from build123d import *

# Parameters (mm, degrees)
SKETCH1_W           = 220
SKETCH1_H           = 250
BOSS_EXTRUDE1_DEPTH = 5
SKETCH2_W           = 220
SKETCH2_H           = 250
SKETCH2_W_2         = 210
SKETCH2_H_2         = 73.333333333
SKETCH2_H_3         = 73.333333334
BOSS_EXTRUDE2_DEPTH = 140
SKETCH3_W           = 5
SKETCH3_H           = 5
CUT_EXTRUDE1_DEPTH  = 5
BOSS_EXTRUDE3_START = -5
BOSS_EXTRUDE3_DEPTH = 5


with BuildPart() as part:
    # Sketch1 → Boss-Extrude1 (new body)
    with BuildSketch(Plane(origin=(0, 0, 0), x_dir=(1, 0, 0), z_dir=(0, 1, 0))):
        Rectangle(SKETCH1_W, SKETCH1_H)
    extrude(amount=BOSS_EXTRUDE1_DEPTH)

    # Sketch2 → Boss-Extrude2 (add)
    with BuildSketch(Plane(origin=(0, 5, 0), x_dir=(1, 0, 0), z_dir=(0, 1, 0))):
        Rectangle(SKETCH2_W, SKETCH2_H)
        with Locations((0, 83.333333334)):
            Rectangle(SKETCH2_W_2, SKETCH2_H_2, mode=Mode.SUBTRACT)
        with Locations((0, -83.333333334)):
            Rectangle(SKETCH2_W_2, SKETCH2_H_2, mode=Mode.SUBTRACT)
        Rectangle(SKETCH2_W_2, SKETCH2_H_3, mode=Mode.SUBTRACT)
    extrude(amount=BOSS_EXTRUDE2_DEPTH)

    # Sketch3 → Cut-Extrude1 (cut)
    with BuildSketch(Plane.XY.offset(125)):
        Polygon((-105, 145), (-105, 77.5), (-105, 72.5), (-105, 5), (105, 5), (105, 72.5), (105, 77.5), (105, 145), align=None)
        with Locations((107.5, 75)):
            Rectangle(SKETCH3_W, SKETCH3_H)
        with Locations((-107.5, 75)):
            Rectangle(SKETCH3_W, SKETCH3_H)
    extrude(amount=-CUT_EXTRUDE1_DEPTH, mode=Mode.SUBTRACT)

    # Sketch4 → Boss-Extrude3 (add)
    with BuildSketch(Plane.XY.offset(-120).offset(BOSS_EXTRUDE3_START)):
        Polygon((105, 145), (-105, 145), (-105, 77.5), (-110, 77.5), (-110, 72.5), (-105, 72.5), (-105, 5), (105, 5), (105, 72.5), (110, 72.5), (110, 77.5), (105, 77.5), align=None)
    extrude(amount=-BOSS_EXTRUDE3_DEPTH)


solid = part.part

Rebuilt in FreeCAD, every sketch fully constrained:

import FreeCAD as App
import Part
import Sketcher

V = App.Vector

doc = App.newDocument("Part")
body = doc.addObject("PartDesign::Body", "Body")

sketch1 = body.newObject("Sketcher::SketchObject", "Sketch")
sketch1.AttachmentSupport = (doc.getObject("XZ_Plane"), [""])
sketch1.MapMode = "FlatFace"
sketch1.addGeometry([
    Part.LineSegment(V(-110, -125, 0), V(-110, 125, 0)),
    Part.LineSegment(V(-110, 125, 0), V(110, 125, 0)),
    Part.LineSegment(V(110, 125, 0), V(110, -125, 0)),
    Part.LineSegment(V(110, -125, 0), V(-110, -125, 0)),
], False)
sketch1.addConstraint([
    Sketcher.Constraint("Coincident", 0, 2, 1, 1),
    Sketcher.Constraint("Coincident", 1, 2, 2, 1),
    Sketcher.Constraint("Coincident", 2, 2, 3, 1),
    Sketcher.Constraint("Coincident", 3, 2, 0, 1),
    Sketcher.Constraint("Vertical", 0),
    Sketcher.Constraint("Horizontal", 1),
    Sketcher.Constraint("Vertical", 2),
    Sketcher.Constraint("Horizontal", 3),
    Sketcher.Constraint("Symmetric", 0, 2, 2, 2, -1, 1),
    Sketcher.Constraint("DistanceX", 1, 1, 1, 2, 220.0),
    Sketcher.Constraint("DistanceY", 0, 1, 0, 2, 250.0),
])
pad1 = body.newObject("PartDesign::Pad", "Pad")
pad1.Profile = sketch1
pad1.Length = 5
pad1.Reversed = True

sketch2 = body.newObject("Sketcher::SketchObject", "Sketch001")
sketch2.AttachmentSupport = (doc.getObject("XZ_Plane"), [""])
sketch2.MapMode = "FlatFace"
sketch2.AttachmentOffset = App.Placement(V(0, 0, -5), App.Rotation())
sketch2.addGeometry([
    Part.LineSegment(V(-110, -125, 0), V(-110, 125, 0)),
    Part.LineSegment(V(-110, 125, 0), V(110, 125, 0)),
    Part.LineSegment(V(110, 125, 0), V(110, -125, 0)),
    Part.LineSegment(V(110, -125, 0), V(-110, -125, 0)),
    Part.LineSegment(V(105, 120, 0), V(-105, 120, 0)),
    Part.LineSegment(V(-105, 120, 0), V(-105, 46.666667, 0)),
    Part.LineSegment(V(-105, 46.666667, 0), V(105, 46.666667, 0)),
    Part.LineSegment(V(105, 46.666667, 0), V(105, 120, 0)),
    Part.LineSegment(V(105, 36.666667, 0), V(-105, 36.666667, 0)),
    Part.LineSegment(V(-105, 36.666667, 0), V(-105, -36.666667, 0)),
    Part.LineSegment(V(-105, -36.666667, 0), V(105, -36.666667, 0)),
    Part.LineSegment(V(105, -36.666667, 0), V(105, 36.666667, 0)),
    Part.LineSegment(V(105, -46.666667, 0), V(-105, -46.666667, 0)),
    Part.LineSegment(V(-105, -46.666667, 0), V(-105, -120, 0)),
    Part.LineSegment(V(-105, -120, 0), V(105, -120, 0)),
    Part.LineSegment(V(105, -120, 0), V(105, -46.666667, 0)),
], False)
sketch2.addConstraint([
    Sketcher.Constraint("Coincident", 0, 2, 1, 1),
    Sketcher.Constraint("Coincident", 1, 2, 2, 1),
    Sketcher.Constraint("Coincident", 2, 2, 3, 1),
    Sketcher.Constraint("Coincident", 3, 2, 0, 1),
    Sketcher.Constraint("Coincident", 4, 2, 5, 1),
    Sketcher.Constraint("Coincident", 5, 2, 6, 1),
    Sketcher.Constraint("Coincident", 6, 2, 7, 1),
    Sketcher.Constraint("Coincident", 7, 2, 4, 1),
    Sketcher.Constraint("Coincident", 8, 2, 9, 1),
    Sketcher.Constraint("Coincident", 9, 2, 10, 1),
    Sketcher.Constraint("Coincident", 10, 2, 11, 1),
    Sketcher.Constraint("Coincident", 11, 2, 8, 1),
    Sketcher.Constraint("Coincident", 12, 2, 13, 1),
    Sketcher.Constraint("Coincident", 13, 2, 14, 1),
    Sketcher.Constraint("Coincident", 14, 2, 15, 1),
    Sketcher.Constraint("Coincident", 15, 2, 12, 1),
    Sketcher.Constraint("Vertical", 0),
    Sketcher.Constraint("Horizontal", 1),
    Sketcher.Constraint("Vertical", 2),
    Sketcher.Constraint("Horizontal", 3),
    Sketcher.Constraint("Horizontal", 4),
    Sketcher.Constraint("Vertical", 5),
    Sketcher.Constraint("Horizontal", 6),
    Sketcher.Constraint("Vertical", 7),
    Sketcher.Constraint("Horizontal", 8),
    Sketcher.Constraint("Vertical", 9),
    Sketcher.Constraint("Horizontal", 10),
    Sketcher.Constraint("Vertical", 11),
    Sketcher.Constraint("Horizontal", 12),
    Sketcher.Constraint("Vertical", 13),
    Sketcher.Constraint("Horizontal", 14),
    Sketcher.Constraint("Vertical", 15),
    Sketcher.Constraint("Symmetric", 0, 2, 2, 2, -1, 1),
    Sketcher.Constraint("Symmetric", 8, 2, 10, 2, -1, 1),
    Sketcher.Constraint("Symmetric", 6, 2, 12, 2, -1, 1),
    Sketcher.Constraint("Symmetric", 4, 2, 14, 2, -1, 1),
    Sketcher.Constraint("Vertical", 5, 2, 8, 2),
    Sketcher.Constraint("Vertical", 7, 2, 10, 2),
    Sketcher.Constraint("Equal", 7, 9),
    Sketcher.Constraint("DistanceX", 1, 1, 1, 2, 220.0),
    Sketcher.Constraint("DistanceX", 4, 2, 4, 1, 210.0),
    Sketcher.Constraint("DistanceY", 0, 1, 0, 2, 250.0),
    Sketcher.Constraint("DistanceY", -1, 1, 4, 2, 120.0),
    Sketcher.Constraint("DistanceY", 8, 2, 5, 2, 10.0),
])
pad2 = body.newObject("PartDesign::Pad", "Pad001")
pad2.Profile = sketch2
pad2.Length = 140
pad2.Reversed = True

sketch3 = body.newObject("Sketcher::SketchObject", "Sketch002")
sketch3.AttachmentSupport = (doc.getObject("XY_Plane"), [""])
sketch3.MapMode = "FlatFace"
sketch3.AttachmentOffset = App.Placement(V(0, 0, 125), App.Rotation())
sketch3.addGeometry([
    Part.LineSegment(V(-105, 145, 0), V(-105, 77.5, 0)),
    Part.LineSegment(V(-105, 77.5, 0), V(-110, 77.5, 0)),
    Part.LineSegment(V(-110, 77.5, 0), V(-110, 72.5, 0)),
    Part.LineSegment(V(-110, 72.5, 0), V(-105, 72.5, 0)),
    Part.LineSegment(V(-105, 72.5, 0), V(-105, 5, 0)),
    Part.LineSegment(V(-105, 5, 0), V(105, 5, 0)),
    Part.LineSegment(V(105, 5, 0), V(105, 72.5, 0)),
    Part.LineSegment(V(105, 72.5, 0), V(110, 72.5, 0)),
    Part.LineSegment(V(110, 72.5, 0), V(110, 77.5, 0)),
    Part.LineSegment(V(110, 77.5, 0), V(105, 77.5, 0)),
    Part.LineSegment(V(105, 77.5, 0), V(105, 145, 0)),
    Part.LineSegment(V(105, 145, 0), V(-105, 145, 0)),
], False)
sketch3.addConstraint([
    Sketcher.Constraint("Coincident", 0, 2, 1, 1),
    Sketcher.Constraint("Coincident", 1, 2, 2, 1),
    Sketcher.Constraint("Coincident", 2, 2, 3, 1),
    Sketcher.Constraint("Coincident", 3, 2, 4, 1),
    Sketcher.Constraint("Coincident", 4, 2, 5, 1),
    Sketcher.Constraint("Coincident", 5, 2, 6, 1),
    Sketcher.Constraint("Coincident", 6, 2, 7, 1),
    Sketcher.Constraint("Coincident", 7, 2, 8, 1),
    Sketcher.Constraint("Coincident", 8, 2, 9, 1),
    Sketcher.Constraint("Coincident", 9, 2, 10, 1),
    Sketcher.Constraint("Coincident", 10, 2, 11, 1),
    Sketcher.Constraint("Coincident", 11, 2, 0, 1),
    Sketcher.Constraint("Vertical", 0),
    Sketcher.Constraint("Horizontal", 1),
    Sketcher.Constraint("Vertical", 2),
    Sketcher.Constraint("Horizontal", 3),
    Sketcher.Constraint("Vertical", 4),
    Sketcher.Constraint("Horizontal", 5),
    Sketcher.Constraint("Vertical", 6),
    Sketcher.Constraint("Horizontal", 7),
    Sketcher.Constraint("Vertical", 8),
    Sketcher.Constraint("Horizontal", 9),
    Sketcher.Constraint("Vertical", 10),
    Sketcher.Constraint("Horizontal", 11),
    Sketcher.Constraint("Symmetric", 3, 2, 6, 2, -2),
    Sketcher.Constraint("Symmetric", 1, 2, 8, 2, -2),
    Sketcher.Constraint("Vertical", 0, 2, 3, 2),
    Sketcher.Constraint("Vertical", 6, 2, 9, 2),
    Sketcher.Constraint("Equal", 9, 2),
    Sketcher.Constraint("Equal", 0, 4),
    Sketcher.Constraint("DistanceX", 1, 2, 1, 1, 5.0),
    Sketcher.Constraint("DistanceX", 5, 1, 5, 2, 210.0),
    Sketcher.Constraint("DistanceY", 0, 2, 0, 1, 67.5),
    Sketcher.Constraint("DistanceY", -1, 1, 4, 2, 5.0),
])
pocket1 = body.newObject("PartDesign::Pocket", "Pocket")
pocket1.Profile = sketch3
pocket1.Length = 5

sketch4 = body.newObject("Sketcher::SketchObject", "Sketch003")
sketch4.AttachmentSupport = (doc.getObject("XY_Plane"), [""])
sketch4.MapMode = "FlatFace"
sketch4.AttachmentOffset = App.Placement(V(0, 0, -125), App.Rotation())
sketch4.addGeometry([
    Part.LineSegment(V(105, 145, 0), V(-105, 145, 0)),
    Part.LineSegment(V(-105, 145, 0), V(-105, 77.5, 0)),
    Part.LineSegment(V(-105, 77.5, 0), V(-110, 77.5, 0)),
    Part.LineSegment(V(-110, 77.5, 0), V(-110, 72.5, 0)),
    Part.LineSegment(V(-110, 72.5, 0), V(-105, 72.5, 0)),
    Part.LineSegment(V(-105, 72.5, 0), V(-105, 5, 0)),
    Part.LineSegment(V(-105, 5, 0), V(105, 5, 0)),
    Part.LineSegment(V(105, 5, 0), V(105, 72.5, 0)),
    Part.LineSegment(V(105, 72.5, 0), V(110, 72.5, 0)),
    Part.LineSegment(V(110, 72.5, 0), V(110, 77.5, 0)),
    Part.LineSegment(V(110, 77.5, 0), V(105, 77.5, 0)),
    Part.LineSegment(V(105, 77.5, 0), V(105, 145, 0)),
], False)
sketch4.addConstraint([
    Sketcher.Constraint("Coincident", 0, 2, 1, 1),
    Sketcher.Constraint("Coincident", 1, 2, 2, 1),
    Sketcher.Constraint("Coincident", 2, 2, 3, 1),
    Sketcher.Constraint("Coincident", 3, 2, 4, 1),
    Sketcher.Constraint("Coincident", 4, 2, 5, 1),
    Sketcher.Constraint("Coincident", 5, 2, 6, 1),
    Sketcher.Constraint("Coincident", 6, 2, 7, 1),
    Sketcher.Constraint("Coincident", 7, 2, 8, 1),
    Sketcher.Constraint("Coincident", 8, 2, 9, 1),
    Sketcher.Constraint("Coincident", 9, 2, 10, 1),
    Sketcher.Constraint("Coincident", 10, 2, 11, 1),
    Sketcher.Constraint("Coincident", 11, 2, 0, 1),
    Sketcher.Constraint("Horizontal", 0),
    Sketcher.Constraint("Vertical", 1),
    Sketcher.Constraint("Horizontal", 2),
    Sketcher.Constraint("Vertical", 3),
    Sketcher.Constraint("Horizontal", 4),
    Sketcher.Constraint("Vertical", 5),
    Sketcher.Constraint("Horizontal", 6),
    Sketcher.Constraint("Vertical", 7),
    Sketcher.Constraint("Horizontal", 8),
    Sketcher.Constraint("Vertical", 9),
    Sketcher.Constraint("Horizontal", 10),
    Sketcher.Constraint("Vertical", 11),
    Sketcher.Constraint("Symmetric", 4, 2, 7, 2, -2),
    Sketcher.Constraint("Symmetric", 2, 2, 9, 2, -2),
    Sketcher.Constraint("Vertical", 1, 2, 4, 2),
    Sketcher.Constraint("Vertical", 7, 2, 10, 2),
    Sketcher.Constraint("Equal", 10, 3),
    Sketcher.Constraint("Equal", 1, 5),
    Sketcher.Constraint("DistanceX", 0, 2, 0, 1, 210.0),
    Sketcher.Constraint("DistanceX", 2, 2, 2, 1, 5.0),
    Sketcher.Constraint("DistanceY", 1, 2, 1, 1, 67.5),
    Sketcher.Constraint("DistanceY", -1, 1, 0, 2, 145.0),
])
pad3 = body.newObject("PartDesign::Pad", "Pad002")
pad3.Profile = sketch4
pad3.Length = 5
pad3.Reversed = True

doc.recompute()
